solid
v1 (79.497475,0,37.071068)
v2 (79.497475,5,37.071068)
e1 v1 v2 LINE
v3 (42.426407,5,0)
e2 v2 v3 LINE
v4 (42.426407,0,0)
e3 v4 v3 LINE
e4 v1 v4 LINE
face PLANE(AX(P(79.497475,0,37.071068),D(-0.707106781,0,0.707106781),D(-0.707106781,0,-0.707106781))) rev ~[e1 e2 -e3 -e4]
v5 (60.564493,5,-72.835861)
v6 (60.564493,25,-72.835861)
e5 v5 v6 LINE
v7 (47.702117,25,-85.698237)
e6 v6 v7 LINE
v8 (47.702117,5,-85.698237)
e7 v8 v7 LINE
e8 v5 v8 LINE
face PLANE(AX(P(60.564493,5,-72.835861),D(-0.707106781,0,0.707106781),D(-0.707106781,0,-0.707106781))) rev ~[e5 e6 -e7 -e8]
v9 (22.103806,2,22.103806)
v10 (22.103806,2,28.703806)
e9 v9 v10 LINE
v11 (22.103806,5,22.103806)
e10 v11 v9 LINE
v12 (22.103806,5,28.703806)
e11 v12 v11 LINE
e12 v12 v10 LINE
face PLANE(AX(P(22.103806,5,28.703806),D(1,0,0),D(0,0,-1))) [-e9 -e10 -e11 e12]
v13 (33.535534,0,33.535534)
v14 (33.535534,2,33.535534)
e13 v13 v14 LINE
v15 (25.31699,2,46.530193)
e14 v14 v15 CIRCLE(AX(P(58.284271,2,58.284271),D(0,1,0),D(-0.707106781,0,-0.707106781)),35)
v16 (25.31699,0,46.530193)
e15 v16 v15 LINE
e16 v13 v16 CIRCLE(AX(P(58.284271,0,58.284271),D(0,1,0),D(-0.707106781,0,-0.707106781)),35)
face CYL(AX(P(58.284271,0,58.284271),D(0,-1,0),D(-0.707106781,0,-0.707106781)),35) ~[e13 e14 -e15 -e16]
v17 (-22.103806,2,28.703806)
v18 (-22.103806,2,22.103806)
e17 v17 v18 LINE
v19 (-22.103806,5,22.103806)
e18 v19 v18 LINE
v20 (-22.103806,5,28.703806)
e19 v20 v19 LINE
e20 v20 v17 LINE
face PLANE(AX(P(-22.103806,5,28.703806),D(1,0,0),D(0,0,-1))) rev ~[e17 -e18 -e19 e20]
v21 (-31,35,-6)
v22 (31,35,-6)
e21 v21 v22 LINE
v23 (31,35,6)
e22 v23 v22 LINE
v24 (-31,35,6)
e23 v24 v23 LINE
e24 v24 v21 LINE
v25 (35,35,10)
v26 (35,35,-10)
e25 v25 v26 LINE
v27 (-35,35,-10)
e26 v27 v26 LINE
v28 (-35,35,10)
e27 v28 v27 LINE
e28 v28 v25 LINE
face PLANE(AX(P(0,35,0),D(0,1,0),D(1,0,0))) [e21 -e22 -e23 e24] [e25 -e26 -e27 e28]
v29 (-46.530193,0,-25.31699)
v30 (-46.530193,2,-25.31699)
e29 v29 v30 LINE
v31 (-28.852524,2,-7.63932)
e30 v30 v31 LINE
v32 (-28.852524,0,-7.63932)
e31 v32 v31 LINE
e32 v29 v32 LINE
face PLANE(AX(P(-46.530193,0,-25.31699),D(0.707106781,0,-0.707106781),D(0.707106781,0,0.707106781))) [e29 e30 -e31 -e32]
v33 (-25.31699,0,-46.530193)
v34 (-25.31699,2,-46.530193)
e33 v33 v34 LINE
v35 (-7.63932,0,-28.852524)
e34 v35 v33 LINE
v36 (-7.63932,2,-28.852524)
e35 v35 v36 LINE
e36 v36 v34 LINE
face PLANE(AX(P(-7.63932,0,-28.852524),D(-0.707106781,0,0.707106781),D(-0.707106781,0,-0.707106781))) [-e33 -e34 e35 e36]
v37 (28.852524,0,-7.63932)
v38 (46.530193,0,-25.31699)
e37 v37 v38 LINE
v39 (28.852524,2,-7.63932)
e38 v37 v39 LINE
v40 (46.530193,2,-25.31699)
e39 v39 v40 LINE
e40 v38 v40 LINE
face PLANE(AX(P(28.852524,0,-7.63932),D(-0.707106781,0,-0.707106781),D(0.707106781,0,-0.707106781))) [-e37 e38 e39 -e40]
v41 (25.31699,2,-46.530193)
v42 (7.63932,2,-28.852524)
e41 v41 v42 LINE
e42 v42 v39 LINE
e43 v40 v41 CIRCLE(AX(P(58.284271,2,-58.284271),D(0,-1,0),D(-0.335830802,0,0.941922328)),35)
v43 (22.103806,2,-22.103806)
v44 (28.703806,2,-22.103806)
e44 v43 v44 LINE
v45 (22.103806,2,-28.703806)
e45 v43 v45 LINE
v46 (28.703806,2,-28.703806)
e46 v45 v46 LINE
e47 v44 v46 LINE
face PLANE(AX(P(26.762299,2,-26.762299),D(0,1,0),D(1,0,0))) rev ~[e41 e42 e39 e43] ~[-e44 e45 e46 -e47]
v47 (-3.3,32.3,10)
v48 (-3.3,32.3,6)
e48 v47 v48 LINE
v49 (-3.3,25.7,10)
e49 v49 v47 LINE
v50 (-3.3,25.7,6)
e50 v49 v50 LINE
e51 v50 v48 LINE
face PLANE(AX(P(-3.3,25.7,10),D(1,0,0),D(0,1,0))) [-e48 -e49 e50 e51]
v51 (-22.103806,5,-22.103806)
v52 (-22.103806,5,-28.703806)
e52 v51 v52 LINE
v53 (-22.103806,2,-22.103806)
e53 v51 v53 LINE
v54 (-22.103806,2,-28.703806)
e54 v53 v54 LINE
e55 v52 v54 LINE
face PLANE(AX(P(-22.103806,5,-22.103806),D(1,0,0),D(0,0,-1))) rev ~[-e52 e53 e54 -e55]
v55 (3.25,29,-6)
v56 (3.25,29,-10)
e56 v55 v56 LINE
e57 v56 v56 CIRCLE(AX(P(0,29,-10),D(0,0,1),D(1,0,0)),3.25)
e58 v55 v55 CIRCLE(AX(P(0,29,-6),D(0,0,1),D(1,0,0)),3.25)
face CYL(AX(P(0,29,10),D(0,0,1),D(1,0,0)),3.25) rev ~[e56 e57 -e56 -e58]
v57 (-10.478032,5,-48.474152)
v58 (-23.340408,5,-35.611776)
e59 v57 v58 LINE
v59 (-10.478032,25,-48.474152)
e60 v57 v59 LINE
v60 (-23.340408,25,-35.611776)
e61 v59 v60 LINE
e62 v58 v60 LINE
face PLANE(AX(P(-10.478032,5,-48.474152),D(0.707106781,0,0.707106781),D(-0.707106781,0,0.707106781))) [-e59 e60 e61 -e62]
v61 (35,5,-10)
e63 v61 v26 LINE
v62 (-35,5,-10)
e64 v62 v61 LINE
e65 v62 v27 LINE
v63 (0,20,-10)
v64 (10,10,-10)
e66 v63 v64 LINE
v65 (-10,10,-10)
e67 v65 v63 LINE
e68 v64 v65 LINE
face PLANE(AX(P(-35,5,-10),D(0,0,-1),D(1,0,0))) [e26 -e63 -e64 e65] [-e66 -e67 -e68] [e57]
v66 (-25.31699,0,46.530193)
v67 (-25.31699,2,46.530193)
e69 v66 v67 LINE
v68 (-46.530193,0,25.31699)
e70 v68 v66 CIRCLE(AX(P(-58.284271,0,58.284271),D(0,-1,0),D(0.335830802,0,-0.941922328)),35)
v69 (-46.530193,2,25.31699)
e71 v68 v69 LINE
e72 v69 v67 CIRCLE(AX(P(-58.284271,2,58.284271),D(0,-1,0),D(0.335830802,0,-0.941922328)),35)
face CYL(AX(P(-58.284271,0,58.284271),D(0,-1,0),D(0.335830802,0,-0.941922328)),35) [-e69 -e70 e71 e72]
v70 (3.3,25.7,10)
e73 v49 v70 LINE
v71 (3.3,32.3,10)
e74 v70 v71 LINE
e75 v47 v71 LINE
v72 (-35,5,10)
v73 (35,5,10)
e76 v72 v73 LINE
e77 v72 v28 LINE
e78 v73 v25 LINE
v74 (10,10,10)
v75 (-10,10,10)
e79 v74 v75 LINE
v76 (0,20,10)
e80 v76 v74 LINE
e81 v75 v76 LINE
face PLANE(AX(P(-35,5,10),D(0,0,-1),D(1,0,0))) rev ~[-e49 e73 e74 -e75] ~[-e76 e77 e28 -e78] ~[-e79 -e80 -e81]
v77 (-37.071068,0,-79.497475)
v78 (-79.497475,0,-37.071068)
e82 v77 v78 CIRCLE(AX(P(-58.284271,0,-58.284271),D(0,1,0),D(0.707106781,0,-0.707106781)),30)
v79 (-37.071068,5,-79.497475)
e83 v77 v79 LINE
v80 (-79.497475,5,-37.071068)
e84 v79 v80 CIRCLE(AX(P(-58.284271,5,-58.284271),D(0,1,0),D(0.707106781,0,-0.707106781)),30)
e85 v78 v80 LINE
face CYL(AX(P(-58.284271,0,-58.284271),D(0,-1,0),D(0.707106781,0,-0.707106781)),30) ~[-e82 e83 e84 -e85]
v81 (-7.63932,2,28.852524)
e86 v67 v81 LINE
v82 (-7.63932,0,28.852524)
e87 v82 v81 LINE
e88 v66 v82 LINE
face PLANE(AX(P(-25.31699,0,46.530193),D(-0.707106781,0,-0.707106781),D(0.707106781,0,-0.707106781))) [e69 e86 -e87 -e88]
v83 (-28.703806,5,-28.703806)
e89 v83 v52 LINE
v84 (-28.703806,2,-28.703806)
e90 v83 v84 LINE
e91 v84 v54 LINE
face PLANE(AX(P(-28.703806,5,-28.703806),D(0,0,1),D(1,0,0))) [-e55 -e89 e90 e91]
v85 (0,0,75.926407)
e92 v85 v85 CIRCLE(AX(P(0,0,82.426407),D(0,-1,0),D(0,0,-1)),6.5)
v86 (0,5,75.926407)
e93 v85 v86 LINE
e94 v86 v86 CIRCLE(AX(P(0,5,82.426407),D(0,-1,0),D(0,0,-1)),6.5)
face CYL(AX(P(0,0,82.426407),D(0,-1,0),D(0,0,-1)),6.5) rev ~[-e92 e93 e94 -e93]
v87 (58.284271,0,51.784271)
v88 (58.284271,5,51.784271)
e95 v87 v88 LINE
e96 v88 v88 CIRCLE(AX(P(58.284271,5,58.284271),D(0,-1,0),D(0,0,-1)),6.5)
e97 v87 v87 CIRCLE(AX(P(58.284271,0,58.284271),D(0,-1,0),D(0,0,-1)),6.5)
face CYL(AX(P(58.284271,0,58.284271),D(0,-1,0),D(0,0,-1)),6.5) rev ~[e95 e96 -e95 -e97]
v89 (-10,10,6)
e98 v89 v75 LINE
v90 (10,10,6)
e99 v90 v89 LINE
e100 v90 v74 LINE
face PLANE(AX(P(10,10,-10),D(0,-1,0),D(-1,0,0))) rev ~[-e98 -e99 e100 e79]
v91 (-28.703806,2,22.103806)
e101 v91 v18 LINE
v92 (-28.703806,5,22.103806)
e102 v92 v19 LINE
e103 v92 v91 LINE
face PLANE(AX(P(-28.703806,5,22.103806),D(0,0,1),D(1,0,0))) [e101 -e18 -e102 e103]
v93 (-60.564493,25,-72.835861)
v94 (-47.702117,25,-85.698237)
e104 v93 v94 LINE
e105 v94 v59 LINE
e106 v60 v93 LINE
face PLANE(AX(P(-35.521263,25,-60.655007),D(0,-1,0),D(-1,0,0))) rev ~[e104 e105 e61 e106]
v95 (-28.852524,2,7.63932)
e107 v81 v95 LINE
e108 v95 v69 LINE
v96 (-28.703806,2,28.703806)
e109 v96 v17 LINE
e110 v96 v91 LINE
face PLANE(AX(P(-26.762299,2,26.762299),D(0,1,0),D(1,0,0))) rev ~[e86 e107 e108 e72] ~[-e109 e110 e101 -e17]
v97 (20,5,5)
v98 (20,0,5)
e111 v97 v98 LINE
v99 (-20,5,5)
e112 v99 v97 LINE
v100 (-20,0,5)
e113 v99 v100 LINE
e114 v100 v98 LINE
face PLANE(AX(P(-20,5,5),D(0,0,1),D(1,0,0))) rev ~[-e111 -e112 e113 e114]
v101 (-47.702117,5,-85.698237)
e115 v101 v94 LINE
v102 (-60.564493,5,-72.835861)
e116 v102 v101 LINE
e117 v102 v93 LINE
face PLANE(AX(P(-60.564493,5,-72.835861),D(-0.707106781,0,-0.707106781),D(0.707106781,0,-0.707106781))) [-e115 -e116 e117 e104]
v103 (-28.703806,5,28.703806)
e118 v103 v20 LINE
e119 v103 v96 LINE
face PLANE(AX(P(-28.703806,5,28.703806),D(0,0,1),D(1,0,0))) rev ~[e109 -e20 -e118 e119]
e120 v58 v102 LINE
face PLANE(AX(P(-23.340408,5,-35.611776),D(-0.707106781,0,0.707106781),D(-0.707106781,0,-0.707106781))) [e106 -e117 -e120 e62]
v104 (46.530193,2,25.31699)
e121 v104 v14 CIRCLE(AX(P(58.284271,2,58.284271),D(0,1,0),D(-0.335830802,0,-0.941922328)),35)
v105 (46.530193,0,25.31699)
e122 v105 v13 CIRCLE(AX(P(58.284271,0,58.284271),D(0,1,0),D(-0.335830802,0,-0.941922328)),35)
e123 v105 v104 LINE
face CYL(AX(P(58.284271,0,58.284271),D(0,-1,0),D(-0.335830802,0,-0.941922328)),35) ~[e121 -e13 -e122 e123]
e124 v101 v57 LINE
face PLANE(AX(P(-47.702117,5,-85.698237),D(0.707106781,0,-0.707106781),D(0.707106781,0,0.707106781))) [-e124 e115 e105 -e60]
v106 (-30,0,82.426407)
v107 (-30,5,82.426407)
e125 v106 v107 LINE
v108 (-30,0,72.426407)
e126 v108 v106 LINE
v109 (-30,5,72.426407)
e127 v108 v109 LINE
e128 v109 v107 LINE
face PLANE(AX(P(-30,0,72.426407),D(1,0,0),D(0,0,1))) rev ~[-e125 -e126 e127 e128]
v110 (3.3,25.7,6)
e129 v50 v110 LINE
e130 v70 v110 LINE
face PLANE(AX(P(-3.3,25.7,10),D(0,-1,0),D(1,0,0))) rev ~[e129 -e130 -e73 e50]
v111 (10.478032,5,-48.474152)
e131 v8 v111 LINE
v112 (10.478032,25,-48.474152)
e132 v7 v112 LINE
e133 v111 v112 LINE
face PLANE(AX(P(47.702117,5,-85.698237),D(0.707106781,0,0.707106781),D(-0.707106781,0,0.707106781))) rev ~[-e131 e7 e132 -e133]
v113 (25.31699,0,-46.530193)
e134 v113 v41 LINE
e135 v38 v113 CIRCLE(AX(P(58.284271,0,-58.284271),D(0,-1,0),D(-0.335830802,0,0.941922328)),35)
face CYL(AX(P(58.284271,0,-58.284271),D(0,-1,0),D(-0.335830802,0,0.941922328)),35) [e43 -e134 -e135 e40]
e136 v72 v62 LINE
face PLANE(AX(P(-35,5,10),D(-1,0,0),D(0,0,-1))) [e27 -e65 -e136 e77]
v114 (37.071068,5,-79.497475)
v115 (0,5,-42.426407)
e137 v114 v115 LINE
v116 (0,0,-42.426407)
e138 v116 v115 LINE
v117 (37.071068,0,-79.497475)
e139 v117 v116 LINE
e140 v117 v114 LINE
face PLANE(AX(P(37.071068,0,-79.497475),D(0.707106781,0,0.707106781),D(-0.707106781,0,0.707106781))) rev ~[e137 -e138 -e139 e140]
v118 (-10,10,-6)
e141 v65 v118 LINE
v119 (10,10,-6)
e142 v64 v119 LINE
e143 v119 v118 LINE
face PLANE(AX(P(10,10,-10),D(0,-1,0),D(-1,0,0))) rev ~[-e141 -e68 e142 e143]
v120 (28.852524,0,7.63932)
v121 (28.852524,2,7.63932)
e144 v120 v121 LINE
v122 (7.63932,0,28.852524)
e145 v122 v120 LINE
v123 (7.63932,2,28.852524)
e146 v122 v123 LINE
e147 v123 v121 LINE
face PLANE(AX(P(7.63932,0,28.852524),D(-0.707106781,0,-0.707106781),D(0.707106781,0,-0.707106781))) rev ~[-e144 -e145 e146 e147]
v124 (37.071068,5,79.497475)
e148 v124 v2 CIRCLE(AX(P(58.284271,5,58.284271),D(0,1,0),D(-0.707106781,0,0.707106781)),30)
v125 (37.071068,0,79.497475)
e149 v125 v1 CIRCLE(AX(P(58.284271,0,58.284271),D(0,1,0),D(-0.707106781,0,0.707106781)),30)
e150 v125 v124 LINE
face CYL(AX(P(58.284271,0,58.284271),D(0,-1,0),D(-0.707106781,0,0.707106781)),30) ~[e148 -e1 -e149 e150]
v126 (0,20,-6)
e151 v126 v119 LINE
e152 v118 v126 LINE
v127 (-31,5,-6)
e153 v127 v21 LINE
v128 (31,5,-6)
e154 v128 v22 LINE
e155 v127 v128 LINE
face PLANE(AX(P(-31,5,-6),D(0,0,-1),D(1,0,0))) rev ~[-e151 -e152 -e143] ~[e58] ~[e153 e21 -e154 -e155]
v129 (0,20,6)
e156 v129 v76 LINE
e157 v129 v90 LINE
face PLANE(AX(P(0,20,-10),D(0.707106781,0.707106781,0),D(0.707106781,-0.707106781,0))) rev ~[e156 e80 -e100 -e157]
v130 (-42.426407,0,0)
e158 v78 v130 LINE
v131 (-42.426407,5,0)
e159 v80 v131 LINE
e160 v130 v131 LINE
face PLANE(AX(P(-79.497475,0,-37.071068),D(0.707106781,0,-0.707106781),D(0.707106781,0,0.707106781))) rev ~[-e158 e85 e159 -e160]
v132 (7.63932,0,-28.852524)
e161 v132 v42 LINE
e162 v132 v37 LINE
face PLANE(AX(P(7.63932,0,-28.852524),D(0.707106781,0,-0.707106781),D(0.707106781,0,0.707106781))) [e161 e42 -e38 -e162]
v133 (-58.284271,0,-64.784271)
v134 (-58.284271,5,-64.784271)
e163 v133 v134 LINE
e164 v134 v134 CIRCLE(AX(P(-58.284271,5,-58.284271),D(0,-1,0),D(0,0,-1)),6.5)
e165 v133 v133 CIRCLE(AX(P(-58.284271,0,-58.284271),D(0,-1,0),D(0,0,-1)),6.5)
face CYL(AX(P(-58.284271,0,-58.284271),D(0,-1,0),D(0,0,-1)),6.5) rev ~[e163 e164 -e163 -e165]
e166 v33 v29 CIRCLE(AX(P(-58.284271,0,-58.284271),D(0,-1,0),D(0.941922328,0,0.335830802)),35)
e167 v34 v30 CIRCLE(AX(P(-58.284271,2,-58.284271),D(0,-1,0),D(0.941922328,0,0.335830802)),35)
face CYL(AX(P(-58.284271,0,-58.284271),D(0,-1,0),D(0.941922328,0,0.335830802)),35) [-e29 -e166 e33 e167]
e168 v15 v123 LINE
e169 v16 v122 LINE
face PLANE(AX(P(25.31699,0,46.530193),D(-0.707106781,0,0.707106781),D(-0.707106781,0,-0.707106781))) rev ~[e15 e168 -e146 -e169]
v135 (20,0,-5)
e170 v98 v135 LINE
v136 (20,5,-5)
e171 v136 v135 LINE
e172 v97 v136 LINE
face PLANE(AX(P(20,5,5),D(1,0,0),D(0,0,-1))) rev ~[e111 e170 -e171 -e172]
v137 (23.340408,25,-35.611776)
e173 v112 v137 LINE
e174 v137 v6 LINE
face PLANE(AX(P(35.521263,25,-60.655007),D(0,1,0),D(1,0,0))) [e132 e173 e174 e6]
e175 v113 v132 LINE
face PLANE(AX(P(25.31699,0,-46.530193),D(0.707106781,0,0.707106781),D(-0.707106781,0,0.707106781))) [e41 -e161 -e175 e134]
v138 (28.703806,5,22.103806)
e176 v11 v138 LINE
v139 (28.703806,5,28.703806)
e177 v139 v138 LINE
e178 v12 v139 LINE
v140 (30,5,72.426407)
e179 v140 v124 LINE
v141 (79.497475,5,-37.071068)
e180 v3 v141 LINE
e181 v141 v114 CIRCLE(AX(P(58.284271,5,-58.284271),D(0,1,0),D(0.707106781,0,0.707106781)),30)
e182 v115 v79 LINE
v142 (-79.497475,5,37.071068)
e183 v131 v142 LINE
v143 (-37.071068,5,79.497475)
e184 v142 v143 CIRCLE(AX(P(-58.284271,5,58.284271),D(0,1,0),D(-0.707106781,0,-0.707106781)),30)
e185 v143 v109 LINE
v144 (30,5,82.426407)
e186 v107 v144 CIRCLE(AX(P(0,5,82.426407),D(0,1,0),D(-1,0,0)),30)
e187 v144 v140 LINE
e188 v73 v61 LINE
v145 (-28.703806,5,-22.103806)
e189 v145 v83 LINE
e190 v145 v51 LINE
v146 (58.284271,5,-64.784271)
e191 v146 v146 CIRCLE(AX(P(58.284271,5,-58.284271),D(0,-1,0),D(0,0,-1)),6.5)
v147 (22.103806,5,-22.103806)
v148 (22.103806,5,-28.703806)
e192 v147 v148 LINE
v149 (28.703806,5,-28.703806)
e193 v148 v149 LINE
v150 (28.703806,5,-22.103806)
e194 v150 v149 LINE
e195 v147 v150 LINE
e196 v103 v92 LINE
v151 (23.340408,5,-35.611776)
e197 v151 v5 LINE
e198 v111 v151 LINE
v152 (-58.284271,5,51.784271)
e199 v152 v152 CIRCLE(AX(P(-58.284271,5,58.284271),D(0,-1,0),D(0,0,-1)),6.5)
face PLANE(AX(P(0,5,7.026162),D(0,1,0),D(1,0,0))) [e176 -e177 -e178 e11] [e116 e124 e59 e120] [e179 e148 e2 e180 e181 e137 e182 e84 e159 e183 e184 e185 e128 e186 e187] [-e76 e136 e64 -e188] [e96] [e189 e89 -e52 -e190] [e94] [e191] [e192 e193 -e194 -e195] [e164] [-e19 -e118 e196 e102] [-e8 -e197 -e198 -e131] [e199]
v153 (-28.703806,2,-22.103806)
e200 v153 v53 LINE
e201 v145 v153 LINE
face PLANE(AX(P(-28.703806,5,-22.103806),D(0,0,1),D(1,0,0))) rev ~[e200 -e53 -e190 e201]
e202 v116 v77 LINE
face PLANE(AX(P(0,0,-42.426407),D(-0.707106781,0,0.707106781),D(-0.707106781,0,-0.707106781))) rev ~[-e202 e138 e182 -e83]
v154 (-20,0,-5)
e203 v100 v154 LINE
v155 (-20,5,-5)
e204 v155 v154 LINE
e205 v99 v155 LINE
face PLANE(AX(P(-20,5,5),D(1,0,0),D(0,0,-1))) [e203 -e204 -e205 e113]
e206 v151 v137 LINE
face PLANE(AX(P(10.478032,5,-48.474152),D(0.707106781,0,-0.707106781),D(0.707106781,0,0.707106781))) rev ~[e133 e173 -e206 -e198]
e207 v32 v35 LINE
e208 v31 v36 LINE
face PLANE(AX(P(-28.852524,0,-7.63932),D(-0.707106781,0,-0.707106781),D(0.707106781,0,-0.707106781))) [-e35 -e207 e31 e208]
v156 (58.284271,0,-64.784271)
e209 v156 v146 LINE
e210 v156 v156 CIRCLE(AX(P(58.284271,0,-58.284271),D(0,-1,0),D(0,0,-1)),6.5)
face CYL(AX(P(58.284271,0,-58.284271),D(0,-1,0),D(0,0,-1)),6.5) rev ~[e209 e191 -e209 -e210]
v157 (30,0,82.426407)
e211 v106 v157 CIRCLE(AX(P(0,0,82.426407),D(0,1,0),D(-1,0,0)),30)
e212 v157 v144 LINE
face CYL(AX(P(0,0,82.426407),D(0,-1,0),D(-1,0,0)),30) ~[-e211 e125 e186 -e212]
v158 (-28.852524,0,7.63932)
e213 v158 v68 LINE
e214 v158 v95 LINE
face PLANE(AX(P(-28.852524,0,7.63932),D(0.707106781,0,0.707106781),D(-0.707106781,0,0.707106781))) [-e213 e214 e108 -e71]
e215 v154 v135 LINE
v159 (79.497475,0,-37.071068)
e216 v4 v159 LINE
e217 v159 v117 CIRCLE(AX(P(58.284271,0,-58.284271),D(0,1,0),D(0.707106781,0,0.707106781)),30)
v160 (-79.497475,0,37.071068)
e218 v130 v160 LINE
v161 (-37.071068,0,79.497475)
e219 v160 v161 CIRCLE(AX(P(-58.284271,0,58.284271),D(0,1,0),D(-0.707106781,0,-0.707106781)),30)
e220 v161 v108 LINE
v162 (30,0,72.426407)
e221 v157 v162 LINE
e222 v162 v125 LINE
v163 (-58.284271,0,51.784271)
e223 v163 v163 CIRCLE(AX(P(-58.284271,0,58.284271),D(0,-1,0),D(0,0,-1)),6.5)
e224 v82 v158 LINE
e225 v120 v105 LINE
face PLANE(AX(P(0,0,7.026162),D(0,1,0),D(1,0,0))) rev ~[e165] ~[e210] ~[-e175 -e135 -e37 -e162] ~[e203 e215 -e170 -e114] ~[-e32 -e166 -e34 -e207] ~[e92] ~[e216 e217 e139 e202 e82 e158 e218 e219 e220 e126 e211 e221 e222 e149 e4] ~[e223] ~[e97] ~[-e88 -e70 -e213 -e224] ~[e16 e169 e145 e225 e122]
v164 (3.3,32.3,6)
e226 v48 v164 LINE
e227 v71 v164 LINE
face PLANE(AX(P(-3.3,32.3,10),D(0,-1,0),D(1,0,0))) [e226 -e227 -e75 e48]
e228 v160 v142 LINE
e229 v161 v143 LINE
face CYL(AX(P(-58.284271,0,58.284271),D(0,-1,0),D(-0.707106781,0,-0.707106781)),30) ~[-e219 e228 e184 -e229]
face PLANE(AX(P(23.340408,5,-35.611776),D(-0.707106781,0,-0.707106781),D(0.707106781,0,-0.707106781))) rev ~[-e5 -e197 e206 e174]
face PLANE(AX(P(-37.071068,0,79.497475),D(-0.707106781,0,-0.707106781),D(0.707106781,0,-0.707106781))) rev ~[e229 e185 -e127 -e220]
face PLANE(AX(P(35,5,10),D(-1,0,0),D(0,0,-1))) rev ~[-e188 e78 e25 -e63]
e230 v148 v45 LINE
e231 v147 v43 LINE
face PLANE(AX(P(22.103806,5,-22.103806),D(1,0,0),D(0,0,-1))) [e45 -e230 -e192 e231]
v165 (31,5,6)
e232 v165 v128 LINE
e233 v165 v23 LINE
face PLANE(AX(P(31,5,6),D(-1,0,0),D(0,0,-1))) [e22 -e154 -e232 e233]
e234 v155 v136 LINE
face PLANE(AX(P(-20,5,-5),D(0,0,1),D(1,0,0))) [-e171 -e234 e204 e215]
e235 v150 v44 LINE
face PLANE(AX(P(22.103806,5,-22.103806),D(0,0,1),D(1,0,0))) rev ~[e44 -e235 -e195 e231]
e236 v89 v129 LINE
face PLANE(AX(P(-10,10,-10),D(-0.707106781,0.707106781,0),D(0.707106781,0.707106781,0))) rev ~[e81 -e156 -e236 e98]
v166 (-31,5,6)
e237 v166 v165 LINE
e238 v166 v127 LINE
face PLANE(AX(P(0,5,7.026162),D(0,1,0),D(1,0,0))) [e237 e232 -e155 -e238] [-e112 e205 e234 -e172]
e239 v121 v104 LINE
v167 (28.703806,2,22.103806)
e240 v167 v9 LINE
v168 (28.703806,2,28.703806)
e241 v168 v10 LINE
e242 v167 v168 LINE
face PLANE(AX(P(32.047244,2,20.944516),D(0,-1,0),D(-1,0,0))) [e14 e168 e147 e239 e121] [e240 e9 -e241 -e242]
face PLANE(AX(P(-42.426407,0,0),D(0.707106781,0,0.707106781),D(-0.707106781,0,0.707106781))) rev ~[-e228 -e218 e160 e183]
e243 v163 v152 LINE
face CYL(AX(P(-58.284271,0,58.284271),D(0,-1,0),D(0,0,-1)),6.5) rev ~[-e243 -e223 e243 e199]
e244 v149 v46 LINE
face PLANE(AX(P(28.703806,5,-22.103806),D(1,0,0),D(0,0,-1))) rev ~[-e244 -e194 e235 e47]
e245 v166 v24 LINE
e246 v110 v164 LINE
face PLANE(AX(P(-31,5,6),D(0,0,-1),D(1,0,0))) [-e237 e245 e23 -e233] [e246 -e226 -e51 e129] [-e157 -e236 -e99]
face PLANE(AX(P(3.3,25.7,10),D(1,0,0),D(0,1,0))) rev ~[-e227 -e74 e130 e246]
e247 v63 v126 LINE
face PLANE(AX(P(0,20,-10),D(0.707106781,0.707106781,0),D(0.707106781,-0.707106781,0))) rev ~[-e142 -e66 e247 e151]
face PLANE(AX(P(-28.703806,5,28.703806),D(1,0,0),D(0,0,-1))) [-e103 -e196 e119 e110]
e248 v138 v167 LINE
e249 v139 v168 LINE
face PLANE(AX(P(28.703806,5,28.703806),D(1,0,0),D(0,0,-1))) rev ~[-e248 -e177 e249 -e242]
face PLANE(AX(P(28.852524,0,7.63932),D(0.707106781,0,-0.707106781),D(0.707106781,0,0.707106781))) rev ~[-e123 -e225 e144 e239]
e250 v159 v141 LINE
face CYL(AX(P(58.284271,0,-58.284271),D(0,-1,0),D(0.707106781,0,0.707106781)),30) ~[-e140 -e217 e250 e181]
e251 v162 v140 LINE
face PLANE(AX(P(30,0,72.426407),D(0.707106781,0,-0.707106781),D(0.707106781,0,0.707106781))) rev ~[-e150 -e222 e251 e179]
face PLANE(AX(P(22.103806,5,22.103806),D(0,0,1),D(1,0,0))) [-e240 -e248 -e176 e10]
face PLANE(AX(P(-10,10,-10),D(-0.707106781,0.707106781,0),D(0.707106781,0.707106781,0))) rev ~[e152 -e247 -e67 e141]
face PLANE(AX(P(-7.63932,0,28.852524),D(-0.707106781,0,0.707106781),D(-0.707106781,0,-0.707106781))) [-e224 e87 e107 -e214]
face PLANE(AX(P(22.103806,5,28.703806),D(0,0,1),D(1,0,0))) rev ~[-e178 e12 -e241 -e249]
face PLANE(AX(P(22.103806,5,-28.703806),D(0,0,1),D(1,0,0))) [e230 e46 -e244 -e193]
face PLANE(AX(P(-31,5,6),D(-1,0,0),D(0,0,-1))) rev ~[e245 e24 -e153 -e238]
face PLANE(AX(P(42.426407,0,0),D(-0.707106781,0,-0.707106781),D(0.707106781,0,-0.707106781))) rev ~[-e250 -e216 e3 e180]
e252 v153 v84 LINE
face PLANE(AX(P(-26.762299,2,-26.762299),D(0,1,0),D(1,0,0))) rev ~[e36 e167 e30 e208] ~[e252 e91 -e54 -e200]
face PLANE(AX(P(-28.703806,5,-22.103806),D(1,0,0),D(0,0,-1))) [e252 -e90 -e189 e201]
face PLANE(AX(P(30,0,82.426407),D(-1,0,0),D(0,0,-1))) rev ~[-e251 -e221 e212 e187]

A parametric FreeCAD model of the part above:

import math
import FreeCAD as App
import Part
import Sketcher
from FreeCAD import Vector
Q = App.Units.Quantity

doc = App.newDocument("Part")
body = doc.addObject("PartDesign::Body", "Body")

# Sketch on XZ plane
sketch1 = doc.addObject("Sketcher::SketchObject", "Sketch")
body.addObject(sketch1)
sketch1.AttachmentSupport = (doc.XZ_Plane, [""])
sketch1.MapMode = "FlatFace"
sketch1.addGeometry([
    Part.LineSegment(Vector(79.497475, 37.071068, 0), Vector(42.426407, 0, 0)),  # 0
    Part.LineSegment(Vector(42.426407, 0, 0), Vector(79.497475, -37.071068, 0)),  # 1
    Part.ArcOfCircle(Part.Circle(Vector(58.284271, -58.284271, 0), Vector(0, 0, 1), 30), math.radians(-135), math.radians(45)),  # 2
    Part.LineSegment(Vector(37.071068, -79.497475, 0), Vector(0, -42.426407, 0)),  # 3
    Part.LineSegment(Vector(0, -42.426407, 0), Vector(-37.071068, -79.497475, 0)),  # 4
    Part.ArcOfCircle(Part.Circle(Vector(-58.284271, -58.284271, 0), Vector(0, 0, 1), 30), math.radians(135), math.radians(315)),  # 5
    Part.LineSegment(Vector(-79.497475, -37.071068, 0), Vector(-42.426407, 0, 0)),  # 6
    Part.LineSegment(Vector(-42.426407, 0, 0), Vector(-79.497475, 37.071068, 0)),  # 7
    Part.ArcOfCircle(Part.Circle(Vector(-58.284271, 58.284271, 0), Vector(0, 0, 1), 30), math.radians(45), math.radians(225)),  # 8
    Part.LineSegment(Vector(-37.071068, 79.497475, 0), Vector(-30, 72.426407, 0)),  # 9
    Part.LineSegment(Vector(-30, 72.426407, 0), Vector(-30, 82.426407, 0)),  # 10
    Part.ArcOfCircle(Part.Circle(Vector(0, 82.426407, 0), Vector(0, 0, 1), 30), math.radians(0), math.radians(180)),  # 11
    Part.LineSegment(Vector(30, 82.426407, 0), Vector(30, 72.426407, 0)),  # 12
    Part.LineSegment(Vector(30, 72.426407, 0), Vector(37.071068, 79.497475, 0)),  # 13
    Part.ArcOfCircle(Part.Circle(Vector(58.284271, 58.284271, 0), Vector(0, 0, 1), 30), math.radians(-45), math.radians(135)),  # 14
], False)
sketch1.addConstraint([
    Sketcher.Constraint("Coincident", 0, 2, 1, 1),
    Sketcher.Constraint("Tangent", 1, 2, 2, 2),
    Sketcher.Constraint("Tangent", 2, 1, 3, 1),
    Sketcher.Constraint("Coincident", 3, 2, 4, 1),
    Sketcher.Constraint("Tangent", 4, 2, 5, 2),
    Sketcher.Constraint("Tangent", 5, 1, 6, 1),
    Sketcher.Constraint("Coincident", 6, 2, 7, 1),
    Sketcher.Constraint("Tangent", 7, 2, 8, 2),
    Sketcher.Constraint("Tangent", 8, 1, 9, 1),
    Sketcher.Constraint("Coincident", 9, 2, 10, 1),
    Sketcher.Constraint("Tangent", 10, 2, 11, 2),
    Sketcher.Constraint("Tangent", 11, 1, 12, 1),
    Sketcher.Constraint("Coincident", 12, 2, 13, 1),
    Sketcher.Constraint("Tangent", 13, 2, 14, 2),
    Sketcher.Constraint("Tangent", 14, 1, 0, 1),
    Sketcher.Constraint("Vertical", 10),
    Sketcher.Constraint("Vertical", 12),
    Sketcher.Constraint("Equal", 2, 5),
    Sketcher.Constraint("Equal", 5, 8),
    Sketcher.Constraint("Equal", 8, 11),
    Sketcher.Constraint("Equal", 11, 14),
    Sketcher.Constraint("Symmetric", 2, 3, 8, 3, -1, 1),
    Sketcher.Constraint("Symmetric", 5, 3, 14, 3, -1, 1),
    Sketcher.Constraint("Symmetric", 0, 2, 6, 2, -1, 1),
    Sketcher.Constraint("Symmetric", 2, 3, 5, 3, -2),
    Sketcher.Constraint("Symmetric", 9, 2, 12, 2, -2),
    Sketcher.Constraint("PointOnObject", 0, 2, -1),
    Sketcher.Constraint("PointOnObject", 3, 2, -2),
    Sketcher.Constraint("Perpendicular", 0, 1),
    Sketcher.Constraint("Parallel", 1, 3),
    Sketcher.Constraint("Parallel", 7, 9),
    Sketcher.Constraint("Equal", 1, 3),
    Sketcher.Constraint("Radius", 2, Q("30 mm")),
    Sketcher.Constraint("DistanceY", 10, 1, 10, 2, Q("10 mm")),
    Sketcher.Constraint("Distance", 9, Q("10 mm")),
])
pad1 = doc.addObject("PartDesign::Pad", "Pad")
body.addObject(pad1)
pad1.Profile = sketch1
pad1.Length = 5
pad1.Reversed = True

# Sketch on XZ plane
sketch2 = doc.addObject("Sketcher::SketchObject", "Sketch001")
body.addObject(sketch2)
sketch2.AttachmentSupport = (doc.XZ_Plane, [""])
sketch2.MapMode = "FlatFace"
sketch2.addGeometry([
    Part.LineSegment(Vector(28.852524, 7.63932, 0), Vector(46.530193, 25.31699, 0)),  # 0
    Part.ArcOfCircle(Part.Circle(Vector(58.284271, 58.284271, 0), Vector(0, 0, 1), 35), math.radians(-135), math.radians(-109.623066)),  # 1
    Part.ArcOfCircle(Part.Circle(Vector(58.284271, 58.284271, 0), Vector(0, 0, 1), 35), math.radians(-160.376934), math.radians(-135)),  # 2
    Part.LineSegment(Vector(25.31699, 46.530193, 0), Vector(7.63932, 28.852524, 0)),  # 3
    Part.LineSegment(Vector(7.63932, 28.852524, 0), Vector(28.852524, 7.63932, 0)),  # 4
    Part.ArcOfCircle(Part.Circle(Vector(58.284271, -58.284271, 0), Vector(0, 0, 1), 35), math.radians(109.623066), math.radians(160.376934)),  # 5
    Part.LineSegment(Vector(46.530193, -25.31699, 0), Vector(28.852524, -7.63932, 0)),  # 6
    Part.LineSegment(Vector(28.852524, -7.63932, 0), Vector(7.63932, -28.852524, 0)),  # 7
    Part.LineSegment(Vector(7.63932, -28.852524, 0), Vector(25.31699, -46.530193, 0)),  # 8
    Part.ArcOfCircle(Part.Circle(Vector(-58.284271, -58.284271, 0), Vector(0, 0, 1), 35), math.radians(19.623066), math.radians(70.376934)),  # 9
    Part.LineSegment(Vector(-25.31699, -46.530193, 0), Vector(-7.63932, -28.852524, 0)),  # 10
    Part.LineSegment(Vector(-7.63932, -28.852524, 0), Vector(-28.852524, -7.63932, 0)),  # 11
    Part.LineSegment(Vector(-28.852524, -7.63932, 0), Vector(-46.530193, -25.31699, 0)),  # 12
    Part.ArcOfCircle(Part.Circle(Vector(-58.284271, 58.284271, 0), Vector(0, 0, 1), 35), math.radians(-70.376934), math.radians(-19.623066)),  # 13
    Part.LineSegment(Vector(-46.530193, 25.31699, 0), Vector(-28.852524, 7.63932, 0)),  # 14
    Part.LineSegment(Vector(-28.852524, 7.63932, 0), Vector(-7.63932, 28.852524, 0)),  # 15
    Part.LineSegment(Vector(-7.63932, 28.852524, 0), Vector(-25.31699, 46.530193, 0)),  # 16
], False)
sketch2.addConstraint([
    Sketcher.Constraint("Coincident", 0, 2, 1, 2),
    Sketcher.Constraint("Tangent", 1, 1, 2, 2),
    Sketcher.Constraint("Coincident", 2, 1, 3, 1),
    Sketcher.Constraint("Coincident", 3, 2, 4, 1),
    Sketcher.Constraint("Coincident", 4, 2, 0, 1),
    Sketcher.Constraint("Coincident", 5, 1, 6, 1),
    Sketcher.Constraint("Coincident", 6, 2, 7, 1),
    Sketcher.Constraint("Coincident", 7, 2, 8, 1),
    Sketcher.Constraint("Coincident", 8, 2, 5, 2),
    Sketcher.Constraint("Coincident", 9, 1, 10, 1),
    Sketcher.Constraint("Coincident", 10, 2, 11, 1),
    Sketcher.Constraint("Coincident", 11, 2, 12, 1),
    Sketcher.Constraint("Coincident", 12, 2, 9, 2),
    Sketcher.Constraint("Coincident", 13, 1, 14, 1),
    Sketcher.Constraint("Coincident", 14, 2, 15, 1),
    Sketcher.Constraint("Coincident", 15, 2, 16, 1),
    Sketcher.Constraint("Coincident", 16, 2, 13, 2),
    Sketcher.Constraint("Equal", 1, 2),
    Sketcher.Constraint("Equal", 2, 5),
    Sketcher.Constraint("Equal", 5, 9),
    Sketcher.Constraint("Equal", 9, 13),
    Sketcher.Constraint("Symmetric", 1, 3, 9, 3, -1, 1),
    Sketcher.Constraint("Symmetric", 5, 3, 13, 3, -1, 1),
    Sketcher.Constraint("Symmetric", 3, 2, 10, 2, -1, 1),
    Sketcher.Constraint("Symmetric", 4, 2, 11, 2, -1, 1),
    Sketcher.Constraint("Symmetric", 6, 2, 14, 2, -1, 1),
    Sketcher.Constraint("Symmetric", 7, 2, 15, 2, -1, 1),
    Sketcher.Constraint("Symmetric", 5, 3, 9, 3, -2),
    Sketcher.Constraint("Symmetric", 7, 2, 10, 2, -2),
    Sketcher.Constraint("Symmetric", 6, 2, 11, 2, -2),
    Sketcher.Constraint("Parallel", 0, 3),
    Sketcher.Constraint("Perpendicular", 3, 4),
    Sketcher.Constraint("Parallel", 4, 6),
    Sketcher.Constraint("Perpendicular", 6, 7),
    Sketcher.Constraint("Perpendicular", 7, 8),
    Sketcher.Constraint("Perpendicular", 8, 10),
    Sketcher.Constraint("Perpendicular", 11, 12),
    Sketcher.Constraint("Perpendicular", 12, 14),
    Sketcher.Constraint("Perpendicular", 15, 16),
    Sketcher.Constraint("Equal", 0, 3),
    Sketcher.Constraint("Radius", 1, Q("35 mm")),
    Sketcher.Constraint("Distance", 0, Q("25 mm")),
    Sketcher.Constraint("Distance", 4, Q("30 mm")),
    Sketcher.Constraint("DistanceX", -1, 1, 1, 3, Q("58.284271 mm")),
    Sketcher.Constraint("DistanceY", -1, 1, 1, 3, Q("58.284271 mm")),
    Sketcher.Constraint("DistanceX", 1, 1, 0, 2, Q("12.994659 mm")),
])
pocket1 = doc.addObject("PartDesign::Pocket", "Pocket")
body.addObject(pocket1)
pocket1.Profile = sketch2
pocket1.Length = 2

# Sketch on XZ plane
sketch3 = doc.addObject("Sketcher::SketchObject", "Sketch002")
body.addObject(sketch3)
sketch3.AttachmentSupport = (doc.XZ_Plane, [""])
sketch3.MapMode = "FlatFace"
sketch3.addGeometry([
    Part.Circle(Vector(0, 82.426407, 0), Vector(0, 0, 1), 6.5),  # 0
    Part.Circle(Vector(58.284271, 58.284271, 0), Vector(0, 0, 1), 6.5),  # 1
    Part.Circle(Vector(58.284271, -58.284271, 0), Vector(0, 0, 1), 6.5),  # 2
    Part.Circle(Vector(-58.284271, -58.284271, 0), Vector(0, 0, 1), 6.5),  # 3
    Part.Circle(Vector(-58.284271, 58.284271, 0), Vector(0, 0, 1), 6.5),  # 4
], False)
sketch3.addConstraint([
    Sketcher.Constraint("Equal", 0, 1),
    Sketcher.Constraint("Equal", 1, 2),
    Sketcher.Constraint("Equal", 2, 3),
    Sketcher.Constraint("Equal", 3, 4),
    Sketcher.Constraint("Symmetric", 1, 3, 3, 3, -1, 1),
    Sketcher.Constraint("Symmetric", 2, 3, 4, 3, -1, 1),
    Sketcher.Constraint("Symmetric", 2, 3, 3, 3, -2),
    Sketcher.Constraint("PointOnObject", 0, 3, -2),
    Sketcher.Constraint("Diameter", 0, Q("13 mm")),
    Sketcher.Constraint("DistanceX", -1, 1, 1, 3, Q("58.284271 mm")),
    Sketcher.Constraint("DistanceY", -1, 1, 1, 3, Q("58.284271 mm")),
    Sketcher.Constraint("DistanceY", 2, 3, 0, 3, Q("140.710678 mm")),
])
pocket2 = doc.addObject("PartDesign::Pocket", "Pocket001")
body.addObject(pocket2)
pocket2.Profile = sketch3
pocket2.Type = "ThroughAll"

# Sketch on XZ plane
sketch4 = doc.addObject("Sketcher::SketchObject", "Sketch003")
body.addObject(sketch4)
sketch4.AttachmentSupport = (doc.XZ_Plane, [""])
sketch4.MapMode = "FlatFace"
sketch4.AttachmentOffset = App.Placement(Vector(0, 0, -5), App.Rotation())
sketch4.addGeometry([
    Part.Circle(Vector(25.403806, 25.403806, 0), Vector(0, 0, 1), 3.175),
    Part.Circle(Vector(-25.403806, 25.403806, 0), Vector(0, 0, 1), 3.175),
    Part.Circle(Vector(-25.403806, -25.403806, 0), Vector(0, 0, 1), 3.175),
    Part.Circle(Vector(25.403806, -25.403806, 0), Vector(0, 0, 1), 3.175),
], False)
sketch4.addConstraint([
    Sketcher.Constraint("Equal", 0, 1),
    Sketcher.Constraint("Equal", 1, 2),
    Sketcher.Constraint("Equal", 2, 3),
    Sketcher.Constraint("Symmetric", 0, 3, 2, 3, -1, 1),
    Sketcher.Constraint("Symmetric", 1, 3, 3, 3, -1, 1),
    Sketcher.Constraint("Symmetric", 0, 3, 1, 3, -2),
    Sketcher.Constraint("Diameter", 0, Q("6.35 mm")),
    Sketcher.Constraint("DistanceX", 1, 3, 0, 3, Q("50.807612 mm")),
    Sketcher.Constraint("DistanceY", 2, 3, 1, 3, Q("50.807612 mm")),
])
pocket3 = doc.addObject("PartDesign::Pocket", "Pocket002")
body.addObject(pocket3)
pocket3.Profile = sketch4
pocket3.Type = "ThroughAll"
pocket3.Reversed = True

# Sketch on XZ plane
sketch5 = doc.addObject("Sketcher::SketchObject", "Sketch004")
body.addObject(sketch5)
sketch5.AttachmentSupport = (doc.XZ_Plane, [""])
sketch5.MapMode = "FlatFace"
sketch5.AttachmentOffset = App.Placement(Vector(0, 0, -5), App.Rotation())
sketch5.addGeometry([
    Part.LineSegment(Vector(-28.703806, 22.103806, 0), Vector(-28.703806, 28.703806, 0)),  # 0
    Part.LineSegment(Vector(-28.703806, 28.703806, 0), Vector(-22.103806, 28.703806, 0)),  # 1
    Part.LineSegment(Vector(-22.103806, 28.703806, 0), Vector(-22.103806, 22.103806, 0)),  # 2
    Part.LineSegment(Vector(-22.103806, 22.103806, 0), Vector(-28.703806, 22.103806, 0)),  # 3
    Part.LineSegment(Vector(22.103806, 22.103806, 0), Vector(22.103806, 28.703806, 0)),  # 4
    Part.LineSegment(Vector(22.103806, 28.703806, 0), Vector(28.703806, 28.703806, 0)),  # 5
    Part.LineSegment(Vector(28.703806, 28.703806, 0), Vector(28.703806, 22.103806, 0)),  # 6
    Part.LineSegment(Vector(28.703806, 22.103806, 0), Vector(22.103806, 22.103806, 0)),  # 7
    Part.LineSegment(Vector(-28.703806, -28.703806, 0), Vector(-28.703806, -22.103806, 0)),  # 8
    Part.LineSegment(Vector(-28.703806, -22.103806, 0), Vector(-22.103806, -22.103806, 0)),  # 9
    Part.LineSegment(Vector(-22.103806, -22.103806, 0), Vector(-22.103806, -28.703806, 0)),  # 10
    Part.LineSegment(Vector(-22.103806, -28.703806, 0), Vector(-28.703806, -28.703806, 0)),  # 11
    Part.LineSegment(Vector(22.103806, -28.703806, 0), Vector(22.103806, -22.103806, 0)),  # 12
    Part.LineSegment(Vector(22.103806, -22.103806, 0), Vector(28.703806, -22.103806, 0)),  # 13
    Part.LineSegment(Vector(28.703806, -22.103806, 0), Vector(28.703806, -28.703806, 0)),  # 14
    Part.LineSegment(Vector(28.703806, -28.703806, 0), Vector(22.103806, -28.703806, 0)),  # 15
], False)
sketch5.addConstraint([
    Sketcher.Constraint("Coincident", 0, 2, 1, 1),
    Sketcher.Constraint("Coincident", 1, 2, 2, 1),
    Sketcher.Constraint("Coincident", 2, 2, 3, 1),
    Sketcher.Constraint("Coincident", 3, 2, 0, 1),
    Sketcher.Constraint("Coincident", 4, 2, 5, 1),
    Sketcher.Constraint("Coincident", 5, 2, 6, 1),
    Sketcher.Constraint("Coincident", 6, 2, 7, 1),
    Sketcher.Constraint("Coincident", 7, 2, 4, 1),
    Sketcher.Constraint("Coincident", 8, 2, 9, 1),
    Sketcher.Constraint("Coincident", 9, 2, 10, 1),
    Sketcher.Constraint("Coincident", 10, 2, 11, 1),
    Sketcher.Constraint("Coincident", 11, 2, 8, 1),
    Sketcher.Constraint("Coincident", 12, 2, 13, 1),
    Sketcher.Constraint("Coincident", 13, 2, 14, 1),
    Sketcher.Constraint("Coincident", 14, 2, 15, 1),
    Sketcher.Constraint("Coincident", 15, 2, 12, 1),
    Sketcher.Constraint("Vertical", 0),
    Sketcher.Constraint("Horizontal", 1),
    Sketcher.Constraint("Vertical", 2),
    Sketcher.Constraint("Horizontal", 3),
    Sketcher.Constraint("Vertical", 4),
    Sketcher.Constraint("Horizontal", 5),
    Sketcher.Constraint("Vertical", 6),
    Sketcher.Constraint("Horizontal", 7),
    Sketcher.Constraint("Vertical", 8),
    Sketcher.Constraint("Horizontal", 9),
    Sketcher.Constraint("Vertical", 10),
    Sketcher.Constraint("Horizontal", 11),
    Sketcher.Constraint("Vertical", 12),
    Sketcher.Constraint("Horizontal", 13),
    Sketcher.Constraint("Vertical", 14),
    Sketcher.Constraint("Horizontal", 15),
    Sketcher.Constraint("Symmetric", 6, 2, 8, 2, -1, 1),
    Sketcher.Constraint("Symmetric", 4, 2, 10, 2, -1, 1),
    Sketcher.Constraint("Symmetric", 2, 2, 12, 2, -1, 1),
    Sketcher.Constraint("Symmetric", 0, 2, 14, 2, -1, 1),
    Sketcher.Constraint("Symmetric", 1, 2, 4, 2, -2),
    Sketcher.Constraint("Symmetric", 3, 2, 6, 2, -2),
    Sketcher.Constraint("Equal", 15, 0),
    Sketcher.Constraint("DistanceX", 1, 1, 1, 2, Q("6.6 mm")),
    Sketcher.Constraint("DistanceX", 1, 2, 4, 2, Q("44.207612 mm")),
    Sketcher.Constraint("DistanceY", 8, 2, 3, 2, Q("44.207612 mm")),
])
pocket4 = doc.addObject("PartDesign::Pocket", "Pocket003")
body.addObject(pocket4)
pocket4.Profile = sketch5
pocket4.Length = 3.5
pocket4.Reversed = True

# Sketch on XZ plane
sketch6 = doc.addObject("Sketcher::SketchObject", "Sketch005")
body.addObject(sketch6)
sketch6.AttachmentSupport = (doc.XZ_Plane, [""])
sketch6.MapMode = "FlatFace"
sketch6.AttachmentOffset = App.Placement(Vector(0, 0, -5), App.Rotation())
sketch6.addGeometry([
    Part.LineSegment(Vector(47.702117, -85.698237, 0), Vector(10.478032, -48.474152, 0)),  # 0
    Part.LineSegment(Vector(10.478032, -48.474152, 0), Vector(23.340408, -35.611776, 0)),  # 1
    Part.LineSegment(Vector(23.340408, -35.611776, 0), Vector(60.564493, -72.835861, 0)),  # 2
    Part.LineSegment(Vector(60.564493, -72.835861, 0), Vector(47.702117, -85.698237, 0)),  # 3
    Part.LineSegment(Vector(-60.564493, -72.835861, 0), Vector(-23.340408, -35.611776, 0)),  # 4
    Part.LineSegment(Vector(-23.340408, -35.611776, 0), Vector(-10.478032, -48.474152, 0)),  # 5
    Part.LineSegment(Vector(-10.478032, -48.474152, 0), Vector(-47.702117, -85.698237, 0)),  # 6
    Part.LineSegment(Vector(-47.702117, -85.698237, 0), Vector(-60.564493, -72.835861, 0)),  # 7
], False)
sketch6.addConstraint([
    Sketcher.Constraint("Coincident", 0, 2, 1, 1),
    Sketcher.Constraint("Coincident", 1, 2, 2, 1),
    Sketcher.Constraint("Coincident", 2, 2, 3, 1),
    Sketcher.Constraint("Coincident", 3, 2, 0, 1),
    Sketcher.Constraint("Coincident", 4, 2, 5, 1),
    Sketcher.Constraint("Coincident", 5, 2, 6, 1),
    Sketcher.Constraint("Coincident", 6, 2, 7, 1),
    Sketcher.Constraint("Coincident", 7, 2, 4, 1),
    Sketcher.Constraint("Symmetric", 1, 2, 4, 2, -2),
    Sketcher.Constraint("Symmetric", 0, 2, 5, 2, -2),
    Sketcher.Constraint("Symmetric", 3, 2, 6, 2, -2),
    Sketcher.Constraint("Symmetric", 2, 2, 7, 2, -2),
    Sketcher.Constraint("Perpendicular", 0, 1),
    Sketcher.Constraint("Perpendicular", 1, 2),
    Sketcher.Constraint("Perpendicular", 2, 3),
    Sketcher.Constraint("Parallel", 3, 4),
    Sketcher.Constraint("DistanceX", 4, 2, 2, 2, Q("83.904902 mm")),
    Sketcher.Constraint("DistanceX", -1, 1, 0, 2, Q("10.478032 mm")),
    Sketcher.Constraint("DistanceX", -1, 1, 1, 2, Q("23.340408 mm")),
    Sketcher.Constraint("DistanceY", 2, 2, -1, 1, Q("72.835861 mm")),
])
pad2 = doc.addObject("PartDesign::Pad", "Pad001")
body.addObject(pad2)
pad2.Profile = sketch6
pad2.Length = 20
pad2.Reversed = True

# Sketch on XZ plane
sketch7 = doc.addObject("Sketcher::SketchObject", "Sketch006")
body.addObject(sketch7)
sketch7.AttachmentSupport = (doc.XZ_Plane, [""])
sketch7.MapMode = "FlatFace"
sketch7.AttachmentOffset = App.Placement(Vector(0, 0, -5), App.Rotation())
sketch7.addGeometry([
    Part.LineSegment(Vector(-35, -10, 0), Vector(-35, 10, 0)),  # 0
    Part.LineSegment(Vector(-35, 10, 0), Vector(35, 10, 0)),  # 1
    Part.LineSegment(Vector(35, 10, 0), Vector(35, -10, 0)),  # 2
    Part.LineSegment(Vector(35, -10, 0), Vector(-35, -10, 0)),  # 3
    Part.LineSegment(Vector(31, 6, 0), Vector(-31, 6, 0)),  # 4
    Part.LineSegment(Vector(-31, 6, 0), Vector(-31, -6, 0)),  # 5
    Part.LineSegment(Vector(-31, -6, 0), Vector(31, -6, 0)),  # 6
    Part.LineSegment(Vector(31, -6, 0), Vector(31, 6, 0)),  # 7
], False)
sketch7.addConstraint([
    Sketcher.Constraint("Coincident", 0, 2, 1, 1),
    Sketcher.Constraint("Coincident", 1, 2, 2, 1),
    Sketcher.Constraint("Coincident", 2, 2, 3, 1),
    Sketcher.Constraint("Coincident", 3, 2, 0, 1),
    Sketcher.Constraint("Coincident", 4, 2, 5, 1),
    Sketcher.Constraint("Coincident", 5, 2, 6, 1),
    Sketcher.Constraint("Coincident", 6, 2, 7, 1),
    Sketcher.Constraint("Coincident", 7, 2, 4, 1),
    Sketcher.Constraint("Vertical", 0),
    Sketcher.Constraint("Horizontal", 1),
    Sketcher.Constraint("Vertical", 2),
    Sketcher.Constraint("Horizontal", 3),
    Sketcher.Constraint("Horizontal", 4),
    Sketcher.Constraint("Vertical", 5),
    Sketcher.Constraint("Horizontal", 6),
    Sketcher.Constraint("Vertical", 7),
    Sketcher.Constraint("Symmetric", 0, 2, 2, 2, -1, 1),
    Sketcher.Constraint("Symmetric", 4, 2, 6, 2, -1, 1),
    Sketcher.Constraint("DistanceX", 1, 1, 1, 2, Q("70 mm")),
    Sketcher.Constraint("DistanceX", 4, 2, 4, 1, Q("62 mm")),
    Sketcher.Constraint("DistanceY", 0, 1, 0, 2, Q("20 mm")),
    Sketcher.Constraint("DistanceY", 5, 2, 5, 1, Q("12 mm")),
])
pad3 = doc.addObject("PartDesign::Pad", "Pad002")
body.addObject(pad3)
pad3.Profile = sketch7
pad3.Length = 30
pad3.Reversed = True

# Sketch on XY plane
sketch8 = doc.addObject("Sketcher::SketchObject", "Sketch007")
body.addObject(sketch8)
sketch8.AttachmentSupport = (doc.XY_Plane, [""])
sketch8.MapMode = "FlatFace"
sketch8.AttachmentOffset = App.Placement(Vector(0, 0, 10), App.Rotation())
sketch8.addGeometry(Part.Circle(Vector(0, 29, 0), Vector(0, 0, 1), 3.25), False)
sketch8.addConstraint([
    Sketcher.Constraint("PointOnObject", 0, 3, -2),
    Sketcher.Constraint("Diameter", 0, Q("6.5 mm")),
    Sketcher.Constraint("DistanceY", -1, 1, 0, 3, Q("29 mm")),
])
pocket5 = doc.addObject("PartDesign::Pocket", "Pocket004")
body.addObject(pocket5)
pocket5.Profile = sketch8
pocket5.Type = "ThroughAll"

# Sketch on XY plane
sketch9 = doc.addObject("Sketcher::SketchObject", "Sketch008")
body.addObject(sketch9)
sketch9.AttachmentSupport = (doc.XY_Plane, [""])
sketch9.MapMode = "FlatFace"
sketch9.AttachmentOffset = App.Placement(Vector(0, 0, 10), App.Rotation())
sketch9.addGeometry([
    Part.LineSegment(Vector(-3.3, 32.3, 0), Vector(-3.3, 25.7, 0)),
    Part.LineSegment(Vector(-3.3, 25.7, 0), Vector(3.3, 25.7, 0)),
    Part.LineSegment(Vector(3.3, 25.7, 0), Vector(3.3, 32.3, 0)),
    Part.LineSegment(Vector(3.3, 32.3, 0), Vector(-3.3, 32.3, 0)),
], False)
sketch9.addConstraint([
    Sketcher.Constraint("Coincident", 0, 2, 1, 1),
    Sketcher.Constraint("Coincident", 1, 2, 2, 1),
    Sketcher.Constraint("Coincident", 2, 2, 3, 1),
    Sketcher.Constraint("Coincident", 3, 2, 0, 1),
    Sketcher.Constraint("Vertical", 0),
    Sketcher.Constraint("Horizontal", 1),
    Sketcher.Constraint("Vertical", 2),
    Sketcher.Constraint("Horizontal", 3),
    Sketcher.Constraint("Equal", 3, 0),
    Sketcher.Constraint("DistanceX", 1, 1, 1, 2, Q("6.6 mm")),
    Sketcher.Constraint("DistanceX", 0, 2, -1, 1, Q("3.3 mm")),
    Sketcher.Constraint("DistanceY", -1, 1, 0, 2, Q("25.7 mm")),
])
pocket6 = doc.addObject("PartDesign::Pocket", "Pocket005")
body.addObject(pocket6)
pocket6.Profile = sketch9
pocket6.Length = 4

# Sketch on XZ plane
sketch10 = doc.addObject("Sketcher::SketchObject", "Sketch009")
body.addObject(sketch10)
sketch10.AttachmentSupport = (doc.XZ_Plane, [""])
sketch10.MapMode = "FlatFace"
sketch10.AttachmentOffset = App.Placement(Vector(0, 0, -5), App.Rotation())
sketch10.addGeometry([
    Part.LineSegment(Vector(-20, -5, 0), Vector(-20, 5, 0)),
    Part.LineSegment(Vector(-20, 5, 0), Vector(20, 5, 0)),
    Part.LineSegment(Vector(20, 5, 0), Vector(20, -5, 0)),
    Part.LineSegment(Vector(20, -5, 0), Vector(-20, -5, 0)),
], False)
sketch10.addConstraint([
    Sketcher.Constraint("Coincident", 0, 2, 1, 1),
    Sketcher.Constraint("Coincident", 1, 2, 2, 1),
    Sketcher.Constraint("Coincident", 2, 2, 3, 1),
    Sketcher.Constraint("Coincident", 3, 2, 0, 1),
    Sketcher.Constraint("Vertical", 0),
    Sketcher.Constraint("Horizontal", 1),
    Sketcher.Constraint("Vertical", 2),
    Sketcher.Constraint("Horizontal", 3),
    Sketcher.Constraint("Symmetric", 0, 2, 2, 2, -1, 1),
    Sketcher.Constraint("DistanceX", 1, 1, 1, 2, Q("40 mm")),
    Sketcher.Constraint("DistanceY", 0, 1, 0, 2, Q("10 mm")),
])
pocket7 = doc.addObject("PartDesign::Pocket", "Pocket006")
body.addObject(pocket7)
pocket7.Profile = sketch10
pocket7.Type = "ThroughAll"
pocket7.Reversed = True

# Sketch on XY plane
sketch11 = doc.addObject("Sketcher::SketchObject", "Sketch010")
body.addObject(sketch11)
sketch11.AttachmentSupport = (doc.XY_Plane, [""])
sketch11.MapMode = "FlatFace"
sketch11.AttachmentOffset = App.Placement(Vector(0, 0, -10), App.Rotation())
sketch11.addGeometry([
    Part.LineSegment(Vector(10, 10, 0), Vector(-10, 10, 0)),
    Part.LineSegment(Vector(-10, 10, 0), Vector(0, 20, 0)),
    Part.LineSegment(Vector(0, 20, 0), Vector(10, 10, 0)),
], False)
sketch11.addConstraint([
    Sketcher.Constraint("Coincident", 0, 2, 1, 1),
    Sketcher.Constraint("Coincident", 1, 2, 2, 1),
    Sketcher.Constraint("Coincident", 2, 2, 0, 1),
    Sketcher.Constraint("Horizontal", 0),
    Sketcher.Constraint("PointOnObject", 1, 2, -2),
    Sketcher.Constraint("Perpendicular", 1, 2),
    Sketcher.Constraint("Equal", 1, 2),
    Sketcher.Constraint("DistanceX", 0, 2, 0, 1, Q("20 mm")),
    Sketcher.Constraint("DistanceY", -1, 1, 0, 2, Q("10 mm")),
])
pocket8 = doc.addObject("PartDesign::Pocket", "Pocket007")
body.addObject(pocket8)
pocket8.Profile = sketch11
pocket8.Type = "ThroughAll"
pocket8.Reversed = True

doc.recompute()
